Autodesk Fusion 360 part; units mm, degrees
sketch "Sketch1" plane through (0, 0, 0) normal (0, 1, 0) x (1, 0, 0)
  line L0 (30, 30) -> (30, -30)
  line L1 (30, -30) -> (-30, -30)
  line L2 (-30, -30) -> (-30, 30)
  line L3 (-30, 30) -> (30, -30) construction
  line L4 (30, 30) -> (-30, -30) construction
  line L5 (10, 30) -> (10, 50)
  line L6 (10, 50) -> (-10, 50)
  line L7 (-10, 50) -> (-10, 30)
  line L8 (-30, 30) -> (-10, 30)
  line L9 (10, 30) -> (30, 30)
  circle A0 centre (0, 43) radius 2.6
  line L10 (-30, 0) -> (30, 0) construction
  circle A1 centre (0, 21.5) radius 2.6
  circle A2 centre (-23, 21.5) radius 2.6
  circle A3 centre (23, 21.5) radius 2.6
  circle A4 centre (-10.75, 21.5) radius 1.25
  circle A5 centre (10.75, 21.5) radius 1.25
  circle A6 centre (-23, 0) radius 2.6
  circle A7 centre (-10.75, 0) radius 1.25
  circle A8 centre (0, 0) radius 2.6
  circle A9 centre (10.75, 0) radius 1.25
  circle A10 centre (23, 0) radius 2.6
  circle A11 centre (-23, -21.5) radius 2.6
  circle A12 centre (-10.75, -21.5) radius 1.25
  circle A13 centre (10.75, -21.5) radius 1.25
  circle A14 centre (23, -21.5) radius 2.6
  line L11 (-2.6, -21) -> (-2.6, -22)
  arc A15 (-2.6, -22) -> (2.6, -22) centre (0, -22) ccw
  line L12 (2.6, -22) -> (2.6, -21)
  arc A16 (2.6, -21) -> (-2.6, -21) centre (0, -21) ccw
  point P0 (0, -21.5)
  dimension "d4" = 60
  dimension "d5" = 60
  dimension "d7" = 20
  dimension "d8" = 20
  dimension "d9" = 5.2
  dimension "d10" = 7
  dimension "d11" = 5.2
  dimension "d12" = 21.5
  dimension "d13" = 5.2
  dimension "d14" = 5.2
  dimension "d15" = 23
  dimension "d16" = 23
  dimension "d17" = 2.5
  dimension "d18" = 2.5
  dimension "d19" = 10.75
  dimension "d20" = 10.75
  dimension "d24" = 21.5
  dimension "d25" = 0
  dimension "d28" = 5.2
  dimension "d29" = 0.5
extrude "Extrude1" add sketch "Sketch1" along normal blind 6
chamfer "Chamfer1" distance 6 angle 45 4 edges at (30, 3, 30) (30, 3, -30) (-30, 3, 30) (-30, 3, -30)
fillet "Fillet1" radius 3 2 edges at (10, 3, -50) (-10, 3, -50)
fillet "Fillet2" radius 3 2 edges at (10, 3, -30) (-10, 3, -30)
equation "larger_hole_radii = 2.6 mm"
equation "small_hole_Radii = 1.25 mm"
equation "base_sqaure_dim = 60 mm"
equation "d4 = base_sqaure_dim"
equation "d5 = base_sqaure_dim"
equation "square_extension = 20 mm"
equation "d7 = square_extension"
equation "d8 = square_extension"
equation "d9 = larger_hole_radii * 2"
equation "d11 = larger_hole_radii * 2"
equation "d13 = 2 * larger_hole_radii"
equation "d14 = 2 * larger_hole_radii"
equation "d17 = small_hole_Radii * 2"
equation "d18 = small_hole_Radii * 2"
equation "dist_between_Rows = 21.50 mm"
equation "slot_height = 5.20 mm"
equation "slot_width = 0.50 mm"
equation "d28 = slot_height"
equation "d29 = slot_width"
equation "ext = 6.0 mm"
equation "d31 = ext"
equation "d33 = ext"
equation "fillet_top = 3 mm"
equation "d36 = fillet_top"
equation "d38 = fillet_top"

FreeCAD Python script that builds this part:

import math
import FreeCAD as App
import Part
import Sketcher
Q = App.Units.Quantity


def edges_at(feature, points):
    """Names of the edges that pass closest to the given points."""
    edges = feature.Shape.Edges
    near = lambda p: min(range(len(edges)), key=lambda i: edges[i].distToShape(Part.Vertex(*p))[0])
    return sorted({f"Edge{near(p) + 1}" for p in points})

doc = App.newDocument("Part")
body = doc.addObject("PartDesign::Body", "Body")

sketch1 = body.newObject("Sketcher::SketchObject", "Sketch")
sketch1.AttachmentSupport = (doc.getObject("XZ_Plane"), [""])
sketch1.MapMode = "FlatFace"
sketch1.addGeometry([
    Part.LineSegment(App.Vector(30, 30, 0), App.Vector(30, -30, 0)),
    Part.LineSegment(App.Vector(30, -30, 0), App.Vector(10, -30, 0)),
    Part.LineSegment(App.Vector(10, -30, 0), App.Vector(10, -50, 0)),
    Part.LineSegment(App.Vector(10, -50, 0), App.Vector(-10, -50, 0)),
    Part.LineSegment(App.Vector(-10, -50, 0), App.Vector(-10, -30, 0)),
    Part.LineSegment(App.Vector(-10, -30, 0), App.Vector(-30, -30, 0)),
    Part.LineSegment(App.Vector(-30, -30, 0), App.Vector(-30, 30, 0)),
    Part.LineSegment(App.Vector(-30, 30, 0), App.Vector(30, 30, 0)),
    Part.Circle(App.Vector(-23, 21.5, 0), App.Vector(0, 0, 1), 2.6),
    Part.Circle(App.Vector(-10.8, 21.5, 0), App.Vector(0, 0, 1), 1.2),
    Part.Circle(App.Vector(-23, 0, 0), App.Vector(0, 0, 1), 2.6),
    Part.Circle(App.Vector(-10.8, 0, 0), App.Vector(0, 0, 1), 1.2),
    Part.LineSegment(App.Vector(-2.6, 22, 0), App.Vector(-2.6, 21, 0)),
    Part.ArcOfCircle(Part.Circle(App.Vector(0, 21, 0), App.Vector(0, 0, 1), 2.6), math.radians(180), math.radians(360)),
    Part.LineSegment(App.Vector(2.6, 21, 0), App.Vector(2.6, 22, 0)),
    Part.ArcOfCircle(Part.Circle(App.Vector(0, 22, 0), App.Vector(0, 0, 1), 2.6), math.radians(0), math.radians(180)),
    Part.Circle(App.Vector(10.8, 21.5, 0), App.Vector(0, 0, 1), 1.2),
    Part.Circle(App.Vector(23, 21.5, 0), App.Vector(0, 0, 1), 2.6),
    Part.Circle(App.Vector(0, 0, 0), App.Vector(0, 0, 1), 2.6),
    Part.Circle(App.Vector(10.8, 0, 0), App.Vector(0, 0, 1), 1.2),
    Part.Circle(App.Vector(23, 0, 0), App.Vector(0, 0, 1), 2.6),
    Part.Circle(App.Vector(-23, -21.5, 0), App.Vector(0, 0, 1), 2.6),
    Part.Circle(App.Vector(-10.8, -21.5, 0), App.Vector(0, 0, 1), 1.2),
    Part.Circle(App.Vector(0, -21.5, 0), App.Vector(0, 0, 1), 2.6),
    Part.Circle(App.Vector(10.8, -21.5, 0), App.Vector(0, 0, 1), 1.2),
    Part.Circle(App.Vector(23, -21.5, 0), App.Vector(0, 0, 1), 2.6),
    Part.Circle(App.Vector(0, -43, 0), App.Vector(0, 0, 1), 2.6),
], False)
sketch1.addConstraint([
    Sketcher.Constraint("Coincident", 0, 2, 1, 1),
    Sketcher.Constraint("Coincident", 1, 2, 2, 1),
    Sketcher.Constraint("Coincident", 2, 2, 3, 1),
    Sketcher.Constraint("Coincident", 3, 2, 4, 1),
    Sketcher.Constraint("Coincident", 4, 2, 5, 1),
    Sketcher.Constraint("Coincident", 5, 2, 6, 1),
    Sketcher.Constraint("Coincident", 6, 2, 7, 1),
    Sketcher.Constraint("Coincident", 7, 2, 0, 1),
    Sketcher.Constraint("Tangent", 12, 2, 13, 1),
    Sketcher.Constraint("Tangent", 13, 2, 14, 1),
    Sketcher.Constraint("Tangent", 14, 2, 15, 1),
    Sketcher.Constraint("Tangent", 15, 2, 12, 1),
    Sketcher.Constraint("Vertical", 0),
    Sketcher.Constraint("Horizontal", 1),
    Sketcher.Constraint("Vertical", 2),
    Sketcher.Constraint("Horizontal", 3),
    Sketcher.Constraint("Vertical", 4),
    Sketcher.Constraint("Horizontal", 5),
    Sketcher.Constraint("Vertical", 6),
    Sketcher.Constraint("Horizontal", 7),
    Sketcher.Constraint("Vertical", 12),
    Sketcher.Constraint("Vertical", 14),
    Sketcher.Constraint("Coincident", 18, 3, -1, 1),
    Sketcher.Constraint("Equal", 8, 10),
    Sketcher.Constraint("Equal", 9, 11),
    Sketcher.Constraint("Equal", 10, 13),
    Sketcher.Constraint("Equal", 11, 16),
    Sketcher.Constraint("Equal", 15, 17),
    Sketcher.Constraint("Equal", 17, 18),
    Sketcher.Constraint("Equal", 16, 19),
    Sketcher.Constraint("Equal", 18, 20),
    Sketcher.Constraint("Equal", 20, 21),
    Sketcher.Constraint("Equal", 19, 22),
    Sketcher.Constraint("Equal", 21, 23),
    Sketcher.Constraint("Equal", 22, 24),
    Sketcher.Constraint("Equal", 23, 25),
    Sketcher.Constraint("Equal", 25, 26),
    Sketcher.Constraint("Symmetric", 11, 3, 19, 3, -1, 1),
    Sketcher.Constraint("Symmetric", 10, 3, 20, 3, -1, 1),
    Sketcher.Constraint("Symmetric", 17, 3, 21, 3, -1, 1),
    Sketcher.Constraint("Symmetric", 16, 3, 22, 3, -1, 1),
    Sketcher.Constraint("Symmetric", 9, 3, 24, 3, -1, 1),
    Sketcher.Constraint("Symmetric", 8, 3, 25, 3, -1, 1),
    Sketcher.Constraint("Symmetric", 0, 2, 6, 2, -1, 1),
    Sketcher.Constraint("Symmetric", 9, 3, 16, 3, -2),
    Sketcher.Constraint("Symmetric", 8, 3, 17, 3, -2),
    Sketcher.Constraint("Symmetric", 1, 2, 4, 2, -2),
    Sketcher.Constraint("PointOnObject", 10, 3, -1),
    Sketcher.Constraint("PointOnObject", 11, 3, -1),
    Sketcher.Constraint("PointOnObject", 13, 3, -2),
    Sketcher.Constraint("PointOnObject", 23, 3, -2),
    Sketcher.Constraint("PointOnObject", 26, 3, -2),
    Sketcher.Constraint("Horizontal", 8, 3, 9, 3),
    Sketcher.Constraint("Horizontal", 22, 3, 23, 3),
    Sketcher.Constraint("Vertical", 8, 3, 10, 3),
    Sketcher.Constraint("Vertical", 9, 3, 11, 3),
    Sketcher.Constraint("Equal", 1, 3),
    Sketcher.Constraint("Equal", 7, 0),
    Sketcher.Constraint("Equal", 5, 2),
    Sketcher.Constraint("Diameter", 8, Q("5.2 mm")),
    Sketcher.Constraint("Diameter", 9, Q("2.5 mm")),
    Sketcher.Constraint("DistanceX", 1, 2, 1, 1, Q("20 mm")),
    Sketcher.Constraint("DistanceX", 8, 3, -1, 1, Q("23 mm")),
    Sketcher.Constraint("DistanceY", 2, 2, 26, 3, Q("7 mm")),
    Sketcher.Constraint("DistanceY", -1, 1, 8, 3, Q("21.5 mm")),
    Sketcher.Constraint("DistanceY", 13, 3, 9, 3, Q("0.5 mm")),
    Sketcher.Constraint("DistanceY", 9, 3, 15, 3, Q("0.5 mm")),
    Sketcher.Constraint("DistanceX", 9, 3, 16, 3, Q("21.5 mm")),
])
pad1 = body.newObject("PartDesign::Pad", "Pad")
pad1.Profile = sketch1
pad1.Length = 6
pad1.Reversed = True
doc.recompute()

chamfer = body.newObject("PartDesign::Chamfer", "Chamfer")
chamfer.Base = (pad1, edges_at(pad1, [
    (30, 3, 30),
    (30, 3, -30),
    (-30, 3, 30),
    (-30, 3, -30),
]))
chamfer.Size = 6
doc.recompute()

fillet = body.newObject("PartDesign::Fillet", "Fillet")
fillet.Base = (chamfer, edges_at(chamfer, [(10, 3, -50), (-10, 3, -50)]))
fillet.Radius = 3
doc.recompute()

fillet2 = body.newObject("PartDesign::Fillet", "Fillet001")
fillet2.Base = (fillet, edges_at(fillet, [(10, 3, -30), (-10, 3, -30)]))
fillet2.Radius = 3

doc.recompute()
